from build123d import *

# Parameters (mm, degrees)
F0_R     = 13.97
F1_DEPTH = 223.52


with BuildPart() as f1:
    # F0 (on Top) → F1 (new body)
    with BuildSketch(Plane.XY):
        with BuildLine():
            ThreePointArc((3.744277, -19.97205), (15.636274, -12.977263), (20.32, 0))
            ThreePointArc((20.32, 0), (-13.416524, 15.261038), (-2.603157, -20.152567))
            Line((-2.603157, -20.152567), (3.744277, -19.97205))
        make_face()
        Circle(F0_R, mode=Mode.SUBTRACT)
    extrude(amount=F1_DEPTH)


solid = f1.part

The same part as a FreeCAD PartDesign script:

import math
import FreeCAD as App
import Part
import Sketcher
Q = App.Units.Quantity

doc = App.newDocument("Part")
params = doc.addObject("Spreadsheet::Sheet", "Params")
for row, (alias, value) in enumerate([
    ("sketch1_diameter", "1.1 in"),
    ("sketch1_radius", "0.7999999 in"),
    ("sketch1_length", "0.25 in"),
    ("pad1_length", "8.8 in"),
], start=1):
    params.set(f"A{row}", alias)
    params.set(f"B{row}", "=" + value)
    params.setAlias(f"B{row}", alias)

body = doc.addObject("PartDesign::Body", "Body")

sketch1 = body.newObject("Sketcher::SketchObject", "Sketch")
sketch1.AttachmentSupport = (doc.getObject("XY_Plane"), [""])
sketch1.MapMode = "FlatFace"
sketch1.addGeometry([
    Part.ArcOfCircle(Part.Circle(App.Vector(0, 0, 0), App.Vector(0, 0, 1), 20), math.radians(-79), math.radians(0)),
    Part.ArcOfCircle(Part.Circle(App.Vector(0, 0, 0), App.Vector(0, 0, 1), 20), math.radians(0), math.radians(263)),
    Part.LineSegment(App.Vector(-3, -20, 0), App.Vector(4, -20, 0)),
    Part.Circle(App.Vector(0, 0, 0), App.Vector(0, 0, 1), 14),
], False)
sketch1.addConstraint([
    Sketcher.Constraint("Tangent", 0, 2, 1, 1),
    Sketcher.Constraint("Coincident", 1, 2, 2, 1),
    Sketcher.Constraint("Coincident", 2, 2, 0, 1),
    Sketcher.Constraint("Coincident", 0, 3, -1, 1),
    Sketcher.Constraint("Coincident", 3, 3, -1, 1),
    Sketcher.Constraint("Equal", 0, 1),
    Sketcher.Constraint("PointOnObject", 0, 2, -1),
    Sketcher.Constraint("Diameter", 3, Q("1.1 in")),
    Sketcher.Constraint("Radius", 0, Q("0.7999999 in")),
    Sketcher.Constraint("Distance", 2, Q("0.25 in")),
    Sketcher.Constraint("DistanceY", 2, 2, -1, 1, 19.97205),
])
sketch1.setExpression("Constraints[7]", "Params.sketch1_diameter")
sketch1.setExpression("Constraints[8]", "Params.sketch1_radius")
sketch1.setExpression("Constraints[9]", "Params.sketch1_length")
pad1 = body.newObject("PartDesign::Pad", "Pad")
pad1.Profile = sketch1
pad1.setExpression("Length", "Params.pad1_length")

doc.recompute()
